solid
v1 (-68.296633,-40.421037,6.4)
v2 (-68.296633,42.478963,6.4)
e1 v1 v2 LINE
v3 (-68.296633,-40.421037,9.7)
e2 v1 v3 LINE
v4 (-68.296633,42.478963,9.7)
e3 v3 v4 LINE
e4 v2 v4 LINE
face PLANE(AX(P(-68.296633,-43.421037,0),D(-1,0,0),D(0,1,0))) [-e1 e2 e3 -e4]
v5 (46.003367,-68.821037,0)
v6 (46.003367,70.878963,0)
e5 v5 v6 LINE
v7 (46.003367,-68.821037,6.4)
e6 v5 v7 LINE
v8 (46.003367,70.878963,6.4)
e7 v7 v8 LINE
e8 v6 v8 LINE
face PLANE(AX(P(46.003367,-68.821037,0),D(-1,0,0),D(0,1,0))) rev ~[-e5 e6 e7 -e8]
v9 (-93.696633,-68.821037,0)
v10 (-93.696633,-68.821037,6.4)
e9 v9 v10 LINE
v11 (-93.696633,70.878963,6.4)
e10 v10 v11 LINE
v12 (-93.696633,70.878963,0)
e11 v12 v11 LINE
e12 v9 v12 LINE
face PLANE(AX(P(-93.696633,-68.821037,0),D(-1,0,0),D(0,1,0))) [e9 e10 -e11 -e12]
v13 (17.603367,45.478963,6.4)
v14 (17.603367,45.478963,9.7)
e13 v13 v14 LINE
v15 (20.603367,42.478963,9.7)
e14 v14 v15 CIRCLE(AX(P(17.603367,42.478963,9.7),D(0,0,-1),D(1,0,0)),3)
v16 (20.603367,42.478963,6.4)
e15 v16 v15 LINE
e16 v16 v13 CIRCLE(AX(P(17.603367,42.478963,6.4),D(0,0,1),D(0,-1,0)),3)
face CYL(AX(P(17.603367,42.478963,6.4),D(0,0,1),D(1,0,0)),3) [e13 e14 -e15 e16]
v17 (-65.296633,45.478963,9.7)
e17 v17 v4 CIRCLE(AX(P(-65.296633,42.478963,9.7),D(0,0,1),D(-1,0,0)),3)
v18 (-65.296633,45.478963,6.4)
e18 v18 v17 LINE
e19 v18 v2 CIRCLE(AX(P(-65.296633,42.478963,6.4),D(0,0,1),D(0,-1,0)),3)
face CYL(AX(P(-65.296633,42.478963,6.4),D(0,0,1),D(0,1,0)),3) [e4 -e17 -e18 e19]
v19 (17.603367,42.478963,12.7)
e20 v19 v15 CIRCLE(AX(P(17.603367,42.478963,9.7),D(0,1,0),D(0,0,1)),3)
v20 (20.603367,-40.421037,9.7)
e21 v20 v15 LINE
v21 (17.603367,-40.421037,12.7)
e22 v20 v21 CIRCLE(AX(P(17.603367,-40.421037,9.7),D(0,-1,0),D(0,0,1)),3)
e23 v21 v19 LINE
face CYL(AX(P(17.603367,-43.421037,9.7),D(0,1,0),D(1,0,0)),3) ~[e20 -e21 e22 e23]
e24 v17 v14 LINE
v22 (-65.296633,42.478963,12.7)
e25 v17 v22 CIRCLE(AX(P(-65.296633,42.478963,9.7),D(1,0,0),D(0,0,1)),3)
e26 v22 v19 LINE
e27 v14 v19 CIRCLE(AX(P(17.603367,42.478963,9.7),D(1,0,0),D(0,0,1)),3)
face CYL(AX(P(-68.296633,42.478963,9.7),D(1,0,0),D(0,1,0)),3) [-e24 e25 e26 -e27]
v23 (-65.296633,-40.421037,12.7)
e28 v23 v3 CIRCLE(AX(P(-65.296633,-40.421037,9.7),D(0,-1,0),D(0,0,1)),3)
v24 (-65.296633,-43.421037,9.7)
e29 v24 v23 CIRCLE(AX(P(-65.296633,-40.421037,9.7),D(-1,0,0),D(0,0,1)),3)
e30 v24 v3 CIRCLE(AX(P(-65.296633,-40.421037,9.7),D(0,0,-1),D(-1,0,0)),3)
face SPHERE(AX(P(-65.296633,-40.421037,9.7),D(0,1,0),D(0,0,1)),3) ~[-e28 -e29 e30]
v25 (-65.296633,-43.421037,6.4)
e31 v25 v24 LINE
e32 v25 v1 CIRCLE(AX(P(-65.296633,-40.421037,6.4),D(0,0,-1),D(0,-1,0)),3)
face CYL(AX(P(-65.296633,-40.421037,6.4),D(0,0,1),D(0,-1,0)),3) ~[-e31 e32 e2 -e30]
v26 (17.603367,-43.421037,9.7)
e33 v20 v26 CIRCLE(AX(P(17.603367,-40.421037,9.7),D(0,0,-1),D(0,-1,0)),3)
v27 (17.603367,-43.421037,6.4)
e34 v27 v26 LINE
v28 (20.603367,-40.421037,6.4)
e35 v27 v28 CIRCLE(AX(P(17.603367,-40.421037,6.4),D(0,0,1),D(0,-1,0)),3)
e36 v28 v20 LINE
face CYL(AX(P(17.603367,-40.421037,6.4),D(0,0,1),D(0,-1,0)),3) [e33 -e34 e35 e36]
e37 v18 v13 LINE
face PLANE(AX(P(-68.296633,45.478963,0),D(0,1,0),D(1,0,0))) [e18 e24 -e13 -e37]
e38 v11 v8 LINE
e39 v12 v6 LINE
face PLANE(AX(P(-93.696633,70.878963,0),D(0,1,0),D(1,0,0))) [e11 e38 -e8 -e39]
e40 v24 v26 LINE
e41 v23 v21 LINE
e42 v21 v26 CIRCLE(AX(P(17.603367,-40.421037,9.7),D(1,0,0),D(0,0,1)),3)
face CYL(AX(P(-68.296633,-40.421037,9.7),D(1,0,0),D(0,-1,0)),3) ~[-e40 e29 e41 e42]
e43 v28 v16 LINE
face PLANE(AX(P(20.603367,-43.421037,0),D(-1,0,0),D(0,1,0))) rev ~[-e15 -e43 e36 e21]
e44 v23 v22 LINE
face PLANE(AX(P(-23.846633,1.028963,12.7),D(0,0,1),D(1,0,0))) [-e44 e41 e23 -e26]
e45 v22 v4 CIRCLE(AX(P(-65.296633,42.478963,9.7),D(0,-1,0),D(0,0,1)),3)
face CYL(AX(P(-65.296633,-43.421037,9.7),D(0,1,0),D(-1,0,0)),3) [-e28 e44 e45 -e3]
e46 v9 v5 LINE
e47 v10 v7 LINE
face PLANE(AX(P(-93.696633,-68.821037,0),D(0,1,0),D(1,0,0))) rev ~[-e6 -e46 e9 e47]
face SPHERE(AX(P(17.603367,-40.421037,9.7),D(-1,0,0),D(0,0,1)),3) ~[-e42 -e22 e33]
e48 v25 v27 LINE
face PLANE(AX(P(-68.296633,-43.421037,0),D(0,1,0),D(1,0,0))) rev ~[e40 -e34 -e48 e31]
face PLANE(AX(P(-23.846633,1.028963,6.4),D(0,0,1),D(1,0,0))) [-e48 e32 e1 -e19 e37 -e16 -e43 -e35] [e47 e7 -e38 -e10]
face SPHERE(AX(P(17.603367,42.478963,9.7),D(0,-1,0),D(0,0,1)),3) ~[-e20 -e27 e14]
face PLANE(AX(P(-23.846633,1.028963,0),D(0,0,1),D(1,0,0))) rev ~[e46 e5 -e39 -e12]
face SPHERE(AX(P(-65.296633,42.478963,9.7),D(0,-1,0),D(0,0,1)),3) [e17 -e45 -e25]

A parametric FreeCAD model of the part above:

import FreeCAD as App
import Part
import Sketcher
from FreeCAD import Vector
Q = App.Units.Quantity


def edges_at(feature, points):
    """Names of the edges that pass closest to the given points."""
    edges = feature.Shape.Edges
    near = lambda p: min(range(len(edges)), key=lambda i: edges[i].distToShape(Part.Vertex(*p))[0])
    return sorted({f"Edge{near(p) + 1}" for p in points})

doc = App.newDocument("Part")
body = doc.addObject("PartDesign::Body", "Body")

# Sketch on XY plane
sketch1 = doc.addObject("Sketcher::SketchObject", "Sketch")
body.addObject(sketch1)
sketch1.AttachmentSupport = (doc.XY_Plane, [""])
sketch1.MapMode = "FlatFace"
sketch1.addGeometry(Part.LineSegment(Vector(-68, 45, 0), Vector(-68, -43, 0)), False)
sketch1.addGeometry(Part.LineSegment(Vector(-68, -43, 0), Vector(21, -43, 0)), False)
sketch1.addGeometry(Part.LineSegment(Vector(21, -43, 0), Vector(21, 45, 0)), False)
sketch1.addGeometry(Part.LineSegment(Vector(21, 45, 0), Vector(-68, 45, 0)), False)
sketch1.addConstraint(Sketcher.Constraint("Coincident", 0, 2, 1, 1))
sketch1.addConstraint(Sketcher.Constraint("Coincident", 1, 2, 2, 1))
sketch1.addConstraint(Sketcher.Constraint("Coincident", 2, 2, 3, 1))
sketch1.addConstraint(Sketcher.Constraint("Coincident", 3, 2, 0, 1))
sketch1.addConstraint(Sketcher.Constraint("Vertical", 0))
sketch1.addConstraint(Sketcher.Constraint("Horizontal", 1))
sketch1.addConstraint(Sketcher.Constraint("Vertical", 2))
sketch1.addConstraint(Sketcher.Constraint("Horizontal", 3))
sketch1.addConstraint(Sketcher.Constraint("Equal", 3, 0))
sketch1.addConstraint(Sketcher.Constraint("DistanceX", 1, 1, 1, 2, Q("3.5 in")))
sketch1.addConstraint(Sketcher.Constraint("DistanceX", 0, 2, -1, 1, Q("68.296633 mm")))
sketch1.addConstraint(Sketcher.Constraint("DistanceY", 0, 2, -1, 1, Q("43.421037 mm")))
pad1 = doc.addObject("PartDesign::Pad", "Pad")
body.addObject(pad1)
pad1.Profile = sketch1
pad1.Length = Q("0.5 in")

# Sketch on XY plane
sketch2 = doc.addObject("Sketcher::SketchObject", "Sketch001")
body.addObject(sketch2)
sketch2.AttachmentSupport = (doc.XY_Plane, [""])
sketch2.MapMode = "FlatFace"
sketch2.addGeometry(Part.LineSegment(Vector(-94, 71, 0), Vector(-94, -69, 0)), False)
sketch2.addGeometry(Part.LineSegment(Vector(-94, -69, 0), Vector(46, -69, 0)), False)
sketch2.addGeometry(Part.LineSegment(Vector(46, -69, 0), Vector(46, 71, 0)), False)
sketch2.addGeometry(Part.LineSegment(Vector(46, 71, 0), Vector(-94, 71, 0)), False)
sketch2.addGeometry(Part.LineSegment(Vector(21, -43, 0), Vector(-68, -43, 0)), False)
sketch2.addGeometry(Part.LineSegment(Vector(-68, -43, 0), Vector(-68, 45, 0)), False)
sketch2.addGeometry(Part.LineSegment(Vector(-68, 45, 0), Vector(21, 45, 0)), False)
sketch2.addGeometry(Part.LineSegment(Vector(21, 45, 0), Vector(21, -43, 0)), False)
sketch2.addConstraint(Sketcher.Constraint("Coincident", 0, 2, 1, 1))
sketch2.addConstraint(Sketcher.Constraint("Coincident", 1, 2, 2, 1))
sketch2.addConstraint(Sketcher.Constraint("Coincident", 2, 2, 3, 1))
sketch2.addConstraint(Sketcher.Constraint("Coincident", 3, 2, 0, 1))
sketch2.addConstraint(Sketcher.Constraint("Coincident", 4, 2, 5, 1))
sketch2.addConstraint(Sketcher.Constraint("Coincident", 5, 2, 6, 1))
sketch2.addConstraint(Sketcher.Constraint("Coincident", 6, 2, 7, 1))
sketch2.addConstraint(Sketcher.Constraint("Coincident", 7, 2, 4, 1))
sketch2.addConstraint(Sketcher.Constraint("Vertical", 0))
sketch2.addConstraint(Sketcher.Constraint("Horizontal", 1))
sketch2.addConstraint(Sketcher.Constraint("Vertical", 2))
sketch2.addConstraint(Sketcher.Constraint("Horizontal", 3))
sketch2.addConstraint(Sketcher.Constraint("Horizontal", 4))
sketch2.addConstraint(Sketcher.Constraint("Vertical", 5))
sketch2.addConstraint(Sketcher.Constraint("Horizontal", 6))
sketch2.addConstraint(Sketcher.Constraint("Vertical", 7))
sketch2.addConstraint(Sketcher.Constraint("Equal", 3, 0))
sketch2.addConstraint(Sketcher.Constraint("Equal", 6, 5))
sketch2.addConstraint(Sketcher.Constraint("DistanceX", 1, 1, 1, 2, Q("5.5 in")))
sketch2.addConstraint(Sketcher.Constraint("DistanceX", 4, 2, 4, 1, Q("3.5 in")))
sketch2.addConstraint(Sketcher.Constraint("DistanceX", 0, 2, 4, 2, Q("1 in")))
sketch2.addConstraint(Sketcher.Constraint("DistanceY", 0, 2, 4, 2, Q("1 in")))
sketch2.addConstraint(Sketcher.Constraint("DistanceX", 0, 2, -1, 1, Q("93.696633 mm")))
sketch2.addConstraint(Sketcher.Constraint("DistanceY", 0, 2, -1, 1, Q("68.821037 mm")))
pad2 = doc.addObject("PartDesign::Pad", "Pad001")
body.addObject(pad2)
pad2.Profile = sketch2
pad2.Length = 6.4
doc.recompute()

fillet = doc.addObject("PartDesign::Fillet", "Fillet")
body.addObject(fillet)
fillet.Base = (pad2, edges_at(pad2, [
    (-68.297, 1.029, 12.7),
    (-23.847, -43.421, 12.7),
    (20.603, 1.029, 12.7),
    (-23.847, 45.479, 12.7),
    (20.603, -43.421, 9.55),
    (-68.297, -43.421, 9.55),
    (-68.297, 45.479, 9.55),
    (20.603, 45.479, 9.55),
]))
fillet.Radius = 3

doc.recompute()
